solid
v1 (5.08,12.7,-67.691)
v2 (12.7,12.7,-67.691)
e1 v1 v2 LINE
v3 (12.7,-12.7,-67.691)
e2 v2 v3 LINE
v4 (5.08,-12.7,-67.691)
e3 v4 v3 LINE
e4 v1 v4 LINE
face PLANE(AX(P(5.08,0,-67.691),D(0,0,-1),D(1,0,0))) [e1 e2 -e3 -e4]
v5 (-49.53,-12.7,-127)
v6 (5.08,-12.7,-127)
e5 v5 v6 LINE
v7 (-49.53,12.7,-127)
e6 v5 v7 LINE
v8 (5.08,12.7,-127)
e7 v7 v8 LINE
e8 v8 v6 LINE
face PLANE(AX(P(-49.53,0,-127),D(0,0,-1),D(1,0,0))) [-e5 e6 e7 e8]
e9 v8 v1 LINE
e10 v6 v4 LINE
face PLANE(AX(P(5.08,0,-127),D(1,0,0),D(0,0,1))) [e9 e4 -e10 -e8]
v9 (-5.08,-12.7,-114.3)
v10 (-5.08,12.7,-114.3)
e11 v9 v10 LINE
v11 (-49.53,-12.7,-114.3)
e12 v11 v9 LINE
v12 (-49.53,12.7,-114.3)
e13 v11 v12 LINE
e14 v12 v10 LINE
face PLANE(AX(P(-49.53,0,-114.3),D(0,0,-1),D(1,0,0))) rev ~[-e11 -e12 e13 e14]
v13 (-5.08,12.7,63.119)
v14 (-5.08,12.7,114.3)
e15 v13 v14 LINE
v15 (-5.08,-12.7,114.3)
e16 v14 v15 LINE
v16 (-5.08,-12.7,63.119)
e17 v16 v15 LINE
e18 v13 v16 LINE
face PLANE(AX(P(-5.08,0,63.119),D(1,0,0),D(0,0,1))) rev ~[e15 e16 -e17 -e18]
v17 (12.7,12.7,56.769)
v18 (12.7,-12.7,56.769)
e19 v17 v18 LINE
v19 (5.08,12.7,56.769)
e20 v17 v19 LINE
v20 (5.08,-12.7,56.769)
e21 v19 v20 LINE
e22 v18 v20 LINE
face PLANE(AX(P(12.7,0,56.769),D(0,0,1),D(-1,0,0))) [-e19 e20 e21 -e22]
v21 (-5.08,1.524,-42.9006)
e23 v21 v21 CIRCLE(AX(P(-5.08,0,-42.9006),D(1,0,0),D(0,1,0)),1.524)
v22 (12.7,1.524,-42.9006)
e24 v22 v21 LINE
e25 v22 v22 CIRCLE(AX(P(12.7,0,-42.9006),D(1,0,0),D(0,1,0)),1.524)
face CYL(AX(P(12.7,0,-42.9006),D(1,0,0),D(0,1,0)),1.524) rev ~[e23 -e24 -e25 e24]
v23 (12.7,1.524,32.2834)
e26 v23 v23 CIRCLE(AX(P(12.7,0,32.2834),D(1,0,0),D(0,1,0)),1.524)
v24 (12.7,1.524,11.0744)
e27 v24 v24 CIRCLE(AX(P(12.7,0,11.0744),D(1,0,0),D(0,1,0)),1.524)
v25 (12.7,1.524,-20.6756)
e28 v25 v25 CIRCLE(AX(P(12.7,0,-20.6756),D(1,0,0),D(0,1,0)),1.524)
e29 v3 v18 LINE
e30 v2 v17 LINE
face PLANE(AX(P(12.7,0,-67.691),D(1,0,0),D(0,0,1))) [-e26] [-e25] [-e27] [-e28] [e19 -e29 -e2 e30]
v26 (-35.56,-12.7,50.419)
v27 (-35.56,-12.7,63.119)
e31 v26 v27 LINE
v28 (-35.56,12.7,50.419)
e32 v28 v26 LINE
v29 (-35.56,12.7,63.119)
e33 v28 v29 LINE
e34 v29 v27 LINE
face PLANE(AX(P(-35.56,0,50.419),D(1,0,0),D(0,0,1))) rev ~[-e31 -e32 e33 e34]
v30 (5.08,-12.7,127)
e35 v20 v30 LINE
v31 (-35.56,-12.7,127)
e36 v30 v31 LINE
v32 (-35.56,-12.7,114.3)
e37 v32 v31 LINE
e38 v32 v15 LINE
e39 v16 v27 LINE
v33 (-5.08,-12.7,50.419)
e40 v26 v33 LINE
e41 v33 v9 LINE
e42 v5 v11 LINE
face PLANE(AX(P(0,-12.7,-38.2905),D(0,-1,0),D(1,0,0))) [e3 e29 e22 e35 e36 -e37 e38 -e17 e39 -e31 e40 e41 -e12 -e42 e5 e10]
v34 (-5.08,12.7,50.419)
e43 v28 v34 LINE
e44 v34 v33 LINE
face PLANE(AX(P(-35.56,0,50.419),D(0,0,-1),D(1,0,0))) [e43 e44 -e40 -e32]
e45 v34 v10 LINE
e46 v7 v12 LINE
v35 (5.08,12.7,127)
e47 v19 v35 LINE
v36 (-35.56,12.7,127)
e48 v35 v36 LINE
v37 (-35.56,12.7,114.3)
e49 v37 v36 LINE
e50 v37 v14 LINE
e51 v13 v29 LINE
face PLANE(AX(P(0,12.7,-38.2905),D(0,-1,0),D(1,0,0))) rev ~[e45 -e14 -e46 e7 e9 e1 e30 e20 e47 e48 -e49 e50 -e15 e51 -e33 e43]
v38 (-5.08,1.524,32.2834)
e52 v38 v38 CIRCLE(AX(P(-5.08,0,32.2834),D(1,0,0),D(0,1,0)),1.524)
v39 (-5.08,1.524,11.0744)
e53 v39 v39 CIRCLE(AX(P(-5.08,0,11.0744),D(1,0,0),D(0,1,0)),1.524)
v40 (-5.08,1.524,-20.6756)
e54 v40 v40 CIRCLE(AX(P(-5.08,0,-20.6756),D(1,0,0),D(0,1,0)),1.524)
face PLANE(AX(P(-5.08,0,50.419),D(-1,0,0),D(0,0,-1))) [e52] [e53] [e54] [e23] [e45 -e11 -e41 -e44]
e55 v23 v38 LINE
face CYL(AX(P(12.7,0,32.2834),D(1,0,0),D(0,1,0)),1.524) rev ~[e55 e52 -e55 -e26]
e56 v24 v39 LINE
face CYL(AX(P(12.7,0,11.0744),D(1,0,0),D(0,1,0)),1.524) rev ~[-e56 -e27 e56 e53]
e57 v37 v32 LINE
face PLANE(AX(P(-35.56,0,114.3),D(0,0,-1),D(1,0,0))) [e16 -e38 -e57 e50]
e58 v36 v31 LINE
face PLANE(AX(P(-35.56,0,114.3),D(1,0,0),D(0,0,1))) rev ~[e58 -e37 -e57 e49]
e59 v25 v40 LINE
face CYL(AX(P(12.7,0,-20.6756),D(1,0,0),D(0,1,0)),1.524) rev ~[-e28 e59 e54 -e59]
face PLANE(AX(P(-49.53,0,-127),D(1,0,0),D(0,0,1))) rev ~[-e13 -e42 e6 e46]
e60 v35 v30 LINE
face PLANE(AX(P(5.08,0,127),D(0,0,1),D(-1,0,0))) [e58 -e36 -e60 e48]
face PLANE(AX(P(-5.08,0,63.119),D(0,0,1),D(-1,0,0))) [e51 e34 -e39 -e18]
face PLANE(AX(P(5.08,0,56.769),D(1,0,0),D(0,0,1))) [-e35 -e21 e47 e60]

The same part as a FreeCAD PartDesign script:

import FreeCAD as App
import Part
import Sketcher

V = App.Vector
Q = App.Units.Quantity


def add_polygon(sketch, points):
    """Adds a closed chain of lines whose ends are joined by coincident constraints."""
    first, n = sketch.GeometryCount, len(points)
    for a, b in zip(points, points[1:] + points[:1]):
        sketch.addGeometry(Part.LineSegment(App.Vector(*a, 0), App.Vector(*b, 0)), False)
    for i in range(n):
        sketch.addConstraint(Sketcher.Constraint("Coincident", first + i, 2, first + (i + 1) % n, 1))

doc = App.newDocument("Part")
body = doc.addObject("PartDesign::Body", "Body")

sketch1 = body.newObject("Sketcher::SketchObject", "Sketch")
sketch1.AttachmentSupport = (doc.getObject("XZ_Plane"), [""])
sketch1.MapMode = "FlatFace"
add_polygon(sketch1, [(-50, -127), (5, -127), (5, -68), (13, -68), (13, 57), (5, 57), (5, 127), (-36, 127), (-36, 114), (-5, 114), (-5, 63), (-36, 63), (-36, 50), (-5, 50), (-5, -114), (-50, -114)])
sketch1.addConstraint([
    Sketcher.Constraint("Horizontal", 0),
    Sketcher.Constraint("Vertical", 1),
    Sketcher.Constraint("Horizontal", 2),
    Sketcher.Constraint("Vertical", 3),
    Sketcher.Constraint("Horizontal", 4),
    Sketcher.Constraint("Vertical", 5),
    Sketcher.Constraint("Horizontal", 6),
    Sketcher.Constraint("Vertical", 7),
    Sketcher.Constraint("Horizontal", 8),
    Sketcher.Constraint("Vertical", 9),
    Sketcher.Constraint("Horizontal", 10),
    Sketcher.Constraint("Vertical", 11),
    Sketcher.Constraint("Horizontal", 12),
    Sketcher.Constraint("Vertical", 13),
    Sketcher.Constraint("Horizontal", 14),
    Sketcher.Constraint("Vertical", 15),
    Sketcher.Constraint("Symmetric", 0, 2, 5, 2, -1),
    Sketcher.Constraint("Symmetric", 8, 2, 13, 2, -1),
    Sketcher.Constraint("Vertical", 7, 2, 10, 2),
    Sketcher.Constraint("Equal", 7, 11),
    Sketcher.Constraint("DistanceX", 2, 1, 2, 2, Q("0.3 in")),
    Sketcher.Constraint("DistanceX", 6, 2, 6, 1, Q("1.6 in")),
    Sketcher.Constraint("DistanceX", 8, 1, 8, 2, Q("1.2 in")),
    Sketcher.Constraint("DistanceY", 3, 1, 3, 2, Q("4.9 in")),
    Sketcher.Constraint("DistanceY", 7, 2, 7, 1, Q("0.5 in")),
    Sketcher.Constraint("DistanceY", 0, 2, -1, 1, Q("5 in")),
    Sketcher.Constraint("DistanceX", 0, 1, 0, 2, Q("2.15 in")),
    Sketcher.Constraint("DistanceX", -1, 1, 0, 2, Q("0.2 in")),
    Sketcher.Constraint("DistanceY", 1, 1, 1, 2, Q("2.335 in")),
    Sketcher.Constraint("DistanceY", 9, 2, 9, 1, Q("2.015 in")),
])
pad1 = body.newObject("PartDesign::Pad", "Pad")
pad1.Profile = sketch1
pad1.Length = Q("1 in")
pad1.Midplane = True

sketch2 = body.newObject("Sketcher::SketchObject", "Sketch001")
sketch2.AttachmentSupport = (doc.getObject("YZ_Plane"), [""])
sketch2.MapMode = "FlatFace"
sketch2.AttachmentOffset = App.Placement(V(0, 0, 0.5 * 25.4), App.Rotation())
sketch2.addGeometry([
    Part.Circle(V(0, 32.3, 0), V(0, 0, 1), 1.5),
    Part.Circle(V(0, 11.1, 0), V(0, 0, 1), 1.5),
    Part.Circle(V(0, -20.7, 0), V(0, 0, 1), 1.5),
    Part.Circle(V(0, -42.9, 0), V(0, 0, 1), 1.5),
], False)
sketch2.addConstraint([
    Sketcher.Constraint("Equal", 0, 1),
    Sketcher.Constraint("Equal", 1, 2),
    Sketcher.Constraint("Equal", 2, 3),
    Sketcher.Constraint("PointOnObject", 0, 3, -2),
    Sketcher.Constraint("PointOnObject", 1, 3, -2),
    Sketcher.Constraint("PointOnObject", 2, 3, -2),
    Sketcher.Constraint("PointOnObject", 3, 3, -2),
    Sketcher.Constraint("Diameter", 0, Q("0.12 in")),
    Sketcher.Constraint("DistanceY", 2, 3, 1, 3, Q("1.25 in")),
    Sketcher.Constraint("DistanceY", 3, 3, 0, 3, Q("2.96 in")),
    Sketcher.Constraint("DistanceY", -1, 1, 0, 3, Q("1.271 in")),
    Sketcher.Constraint("DistanceY", -1, 1, 1, 3, Q("0.436 in")),
])
pocket1 = body.newObject("PartDesign::Pocket", "Pocket")
pocket1.Profile = sketch2
pocket1.Length = Q("1 in")

doc.recompute()
